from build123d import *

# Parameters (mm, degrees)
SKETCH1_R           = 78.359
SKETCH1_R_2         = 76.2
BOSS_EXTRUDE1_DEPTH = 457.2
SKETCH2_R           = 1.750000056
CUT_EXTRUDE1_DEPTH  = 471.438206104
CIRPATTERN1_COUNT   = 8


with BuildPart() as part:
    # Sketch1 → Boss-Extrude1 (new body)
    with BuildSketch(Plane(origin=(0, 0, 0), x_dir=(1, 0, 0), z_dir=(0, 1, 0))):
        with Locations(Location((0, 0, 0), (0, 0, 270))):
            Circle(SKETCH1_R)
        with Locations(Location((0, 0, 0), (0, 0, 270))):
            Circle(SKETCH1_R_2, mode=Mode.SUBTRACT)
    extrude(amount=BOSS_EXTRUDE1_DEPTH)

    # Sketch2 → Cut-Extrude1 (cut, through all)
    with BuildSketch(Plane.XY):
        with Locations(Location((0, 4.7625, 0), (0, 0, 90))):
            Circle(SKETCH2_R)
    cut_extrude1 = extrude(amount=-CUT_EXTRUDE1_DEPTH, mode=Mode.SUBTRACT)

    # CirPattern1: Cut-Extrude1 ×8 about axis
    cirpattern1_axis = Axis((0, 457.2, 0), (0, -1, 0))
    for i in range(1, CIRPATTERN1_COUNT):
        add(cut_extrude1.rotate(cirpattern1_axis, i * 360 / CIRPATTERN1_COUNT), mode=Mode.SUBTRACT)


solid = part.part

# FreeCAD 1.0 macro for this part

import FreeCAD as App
import Part
import Sketcher

V = App.Vector
Q = App.Units.Quantity

doc = App.newDocument("Part")
body = doc.addObject("PartDesign::Body", "Body")

sketch1 = doc.addObject("Sketcher::SketchObject", "Sketch")
body.addObject(sketch1)
sketch1.AttachmentSupport = (doc.XZ_Plane, [""])
sketch1.MapMode = "FlatFace"
sketch1.addGeometry([
    Part.Circle(V(0, 0, 0), V(0, 0, 1), 78.359),
    Part.Circle(V(0, 0, 0), V(0, 0, 1), 76.2),
], False)
sketch1.addConstraint([
    Sketcher.Constraint("Coincident", 0, 3, -1, 1),
    Sketcher.Constraint("Coincident", 1, 3, -1, 1),
    Sketcher.Constraint("Diameter", 1, Q("6 in")),
    Sketcher.Constraint("Diameter", 0, Q("6.17 in")),
])
pad1 = doc.addObject("PartDesign::Pad", "Pad")
body.addObject(pad1)
pad1.Profile = sketch1
pad1.Length = Q("18 in")
pad1.Reversed = True

sketch2 = doc.addObject("Sketcher::SketchObject", "Sketch001")
body.addObject(sketch2)
sketch2.AttachmentSupport = (doc.XY_Plane, [""])
sketch2.MapMode = "FlatFace"
sketch2.addGeometry(Part.Circle(V(0, 4.7625, 0), V(0, 0, 1), 1.75), False)
sketch2.addConstraint([
    Sketcher.Constraint("PointOnObject", 0, 3, -2),
    Sketcher.Constraint("Diameter", 0, 3.5),
    Sketcher.Constraint("DistanceY", -1, 1, 0, 3, Q("0.1875 in")),
])
pocket1 = doc.addObject("PartDesign::Pocket", "Pocket")
body.addObject(pocket1)
pocket1.Profile = sketch2
pocket1.Type = "ThroughAll"
doc.recompute()

polarpattern = doc.addObject("PartDesign::PolarPattern", "PolarPattern")
body.addObject(polarpattern)
polarpattern.Originals = [pocket1]
polarpattern.Axis = (doc.Y_Axis, [""])
polarpattern.Angle = 360
polarpattern.Occurrences = 8
body.Tip = polarpattern

doc.recompute()
